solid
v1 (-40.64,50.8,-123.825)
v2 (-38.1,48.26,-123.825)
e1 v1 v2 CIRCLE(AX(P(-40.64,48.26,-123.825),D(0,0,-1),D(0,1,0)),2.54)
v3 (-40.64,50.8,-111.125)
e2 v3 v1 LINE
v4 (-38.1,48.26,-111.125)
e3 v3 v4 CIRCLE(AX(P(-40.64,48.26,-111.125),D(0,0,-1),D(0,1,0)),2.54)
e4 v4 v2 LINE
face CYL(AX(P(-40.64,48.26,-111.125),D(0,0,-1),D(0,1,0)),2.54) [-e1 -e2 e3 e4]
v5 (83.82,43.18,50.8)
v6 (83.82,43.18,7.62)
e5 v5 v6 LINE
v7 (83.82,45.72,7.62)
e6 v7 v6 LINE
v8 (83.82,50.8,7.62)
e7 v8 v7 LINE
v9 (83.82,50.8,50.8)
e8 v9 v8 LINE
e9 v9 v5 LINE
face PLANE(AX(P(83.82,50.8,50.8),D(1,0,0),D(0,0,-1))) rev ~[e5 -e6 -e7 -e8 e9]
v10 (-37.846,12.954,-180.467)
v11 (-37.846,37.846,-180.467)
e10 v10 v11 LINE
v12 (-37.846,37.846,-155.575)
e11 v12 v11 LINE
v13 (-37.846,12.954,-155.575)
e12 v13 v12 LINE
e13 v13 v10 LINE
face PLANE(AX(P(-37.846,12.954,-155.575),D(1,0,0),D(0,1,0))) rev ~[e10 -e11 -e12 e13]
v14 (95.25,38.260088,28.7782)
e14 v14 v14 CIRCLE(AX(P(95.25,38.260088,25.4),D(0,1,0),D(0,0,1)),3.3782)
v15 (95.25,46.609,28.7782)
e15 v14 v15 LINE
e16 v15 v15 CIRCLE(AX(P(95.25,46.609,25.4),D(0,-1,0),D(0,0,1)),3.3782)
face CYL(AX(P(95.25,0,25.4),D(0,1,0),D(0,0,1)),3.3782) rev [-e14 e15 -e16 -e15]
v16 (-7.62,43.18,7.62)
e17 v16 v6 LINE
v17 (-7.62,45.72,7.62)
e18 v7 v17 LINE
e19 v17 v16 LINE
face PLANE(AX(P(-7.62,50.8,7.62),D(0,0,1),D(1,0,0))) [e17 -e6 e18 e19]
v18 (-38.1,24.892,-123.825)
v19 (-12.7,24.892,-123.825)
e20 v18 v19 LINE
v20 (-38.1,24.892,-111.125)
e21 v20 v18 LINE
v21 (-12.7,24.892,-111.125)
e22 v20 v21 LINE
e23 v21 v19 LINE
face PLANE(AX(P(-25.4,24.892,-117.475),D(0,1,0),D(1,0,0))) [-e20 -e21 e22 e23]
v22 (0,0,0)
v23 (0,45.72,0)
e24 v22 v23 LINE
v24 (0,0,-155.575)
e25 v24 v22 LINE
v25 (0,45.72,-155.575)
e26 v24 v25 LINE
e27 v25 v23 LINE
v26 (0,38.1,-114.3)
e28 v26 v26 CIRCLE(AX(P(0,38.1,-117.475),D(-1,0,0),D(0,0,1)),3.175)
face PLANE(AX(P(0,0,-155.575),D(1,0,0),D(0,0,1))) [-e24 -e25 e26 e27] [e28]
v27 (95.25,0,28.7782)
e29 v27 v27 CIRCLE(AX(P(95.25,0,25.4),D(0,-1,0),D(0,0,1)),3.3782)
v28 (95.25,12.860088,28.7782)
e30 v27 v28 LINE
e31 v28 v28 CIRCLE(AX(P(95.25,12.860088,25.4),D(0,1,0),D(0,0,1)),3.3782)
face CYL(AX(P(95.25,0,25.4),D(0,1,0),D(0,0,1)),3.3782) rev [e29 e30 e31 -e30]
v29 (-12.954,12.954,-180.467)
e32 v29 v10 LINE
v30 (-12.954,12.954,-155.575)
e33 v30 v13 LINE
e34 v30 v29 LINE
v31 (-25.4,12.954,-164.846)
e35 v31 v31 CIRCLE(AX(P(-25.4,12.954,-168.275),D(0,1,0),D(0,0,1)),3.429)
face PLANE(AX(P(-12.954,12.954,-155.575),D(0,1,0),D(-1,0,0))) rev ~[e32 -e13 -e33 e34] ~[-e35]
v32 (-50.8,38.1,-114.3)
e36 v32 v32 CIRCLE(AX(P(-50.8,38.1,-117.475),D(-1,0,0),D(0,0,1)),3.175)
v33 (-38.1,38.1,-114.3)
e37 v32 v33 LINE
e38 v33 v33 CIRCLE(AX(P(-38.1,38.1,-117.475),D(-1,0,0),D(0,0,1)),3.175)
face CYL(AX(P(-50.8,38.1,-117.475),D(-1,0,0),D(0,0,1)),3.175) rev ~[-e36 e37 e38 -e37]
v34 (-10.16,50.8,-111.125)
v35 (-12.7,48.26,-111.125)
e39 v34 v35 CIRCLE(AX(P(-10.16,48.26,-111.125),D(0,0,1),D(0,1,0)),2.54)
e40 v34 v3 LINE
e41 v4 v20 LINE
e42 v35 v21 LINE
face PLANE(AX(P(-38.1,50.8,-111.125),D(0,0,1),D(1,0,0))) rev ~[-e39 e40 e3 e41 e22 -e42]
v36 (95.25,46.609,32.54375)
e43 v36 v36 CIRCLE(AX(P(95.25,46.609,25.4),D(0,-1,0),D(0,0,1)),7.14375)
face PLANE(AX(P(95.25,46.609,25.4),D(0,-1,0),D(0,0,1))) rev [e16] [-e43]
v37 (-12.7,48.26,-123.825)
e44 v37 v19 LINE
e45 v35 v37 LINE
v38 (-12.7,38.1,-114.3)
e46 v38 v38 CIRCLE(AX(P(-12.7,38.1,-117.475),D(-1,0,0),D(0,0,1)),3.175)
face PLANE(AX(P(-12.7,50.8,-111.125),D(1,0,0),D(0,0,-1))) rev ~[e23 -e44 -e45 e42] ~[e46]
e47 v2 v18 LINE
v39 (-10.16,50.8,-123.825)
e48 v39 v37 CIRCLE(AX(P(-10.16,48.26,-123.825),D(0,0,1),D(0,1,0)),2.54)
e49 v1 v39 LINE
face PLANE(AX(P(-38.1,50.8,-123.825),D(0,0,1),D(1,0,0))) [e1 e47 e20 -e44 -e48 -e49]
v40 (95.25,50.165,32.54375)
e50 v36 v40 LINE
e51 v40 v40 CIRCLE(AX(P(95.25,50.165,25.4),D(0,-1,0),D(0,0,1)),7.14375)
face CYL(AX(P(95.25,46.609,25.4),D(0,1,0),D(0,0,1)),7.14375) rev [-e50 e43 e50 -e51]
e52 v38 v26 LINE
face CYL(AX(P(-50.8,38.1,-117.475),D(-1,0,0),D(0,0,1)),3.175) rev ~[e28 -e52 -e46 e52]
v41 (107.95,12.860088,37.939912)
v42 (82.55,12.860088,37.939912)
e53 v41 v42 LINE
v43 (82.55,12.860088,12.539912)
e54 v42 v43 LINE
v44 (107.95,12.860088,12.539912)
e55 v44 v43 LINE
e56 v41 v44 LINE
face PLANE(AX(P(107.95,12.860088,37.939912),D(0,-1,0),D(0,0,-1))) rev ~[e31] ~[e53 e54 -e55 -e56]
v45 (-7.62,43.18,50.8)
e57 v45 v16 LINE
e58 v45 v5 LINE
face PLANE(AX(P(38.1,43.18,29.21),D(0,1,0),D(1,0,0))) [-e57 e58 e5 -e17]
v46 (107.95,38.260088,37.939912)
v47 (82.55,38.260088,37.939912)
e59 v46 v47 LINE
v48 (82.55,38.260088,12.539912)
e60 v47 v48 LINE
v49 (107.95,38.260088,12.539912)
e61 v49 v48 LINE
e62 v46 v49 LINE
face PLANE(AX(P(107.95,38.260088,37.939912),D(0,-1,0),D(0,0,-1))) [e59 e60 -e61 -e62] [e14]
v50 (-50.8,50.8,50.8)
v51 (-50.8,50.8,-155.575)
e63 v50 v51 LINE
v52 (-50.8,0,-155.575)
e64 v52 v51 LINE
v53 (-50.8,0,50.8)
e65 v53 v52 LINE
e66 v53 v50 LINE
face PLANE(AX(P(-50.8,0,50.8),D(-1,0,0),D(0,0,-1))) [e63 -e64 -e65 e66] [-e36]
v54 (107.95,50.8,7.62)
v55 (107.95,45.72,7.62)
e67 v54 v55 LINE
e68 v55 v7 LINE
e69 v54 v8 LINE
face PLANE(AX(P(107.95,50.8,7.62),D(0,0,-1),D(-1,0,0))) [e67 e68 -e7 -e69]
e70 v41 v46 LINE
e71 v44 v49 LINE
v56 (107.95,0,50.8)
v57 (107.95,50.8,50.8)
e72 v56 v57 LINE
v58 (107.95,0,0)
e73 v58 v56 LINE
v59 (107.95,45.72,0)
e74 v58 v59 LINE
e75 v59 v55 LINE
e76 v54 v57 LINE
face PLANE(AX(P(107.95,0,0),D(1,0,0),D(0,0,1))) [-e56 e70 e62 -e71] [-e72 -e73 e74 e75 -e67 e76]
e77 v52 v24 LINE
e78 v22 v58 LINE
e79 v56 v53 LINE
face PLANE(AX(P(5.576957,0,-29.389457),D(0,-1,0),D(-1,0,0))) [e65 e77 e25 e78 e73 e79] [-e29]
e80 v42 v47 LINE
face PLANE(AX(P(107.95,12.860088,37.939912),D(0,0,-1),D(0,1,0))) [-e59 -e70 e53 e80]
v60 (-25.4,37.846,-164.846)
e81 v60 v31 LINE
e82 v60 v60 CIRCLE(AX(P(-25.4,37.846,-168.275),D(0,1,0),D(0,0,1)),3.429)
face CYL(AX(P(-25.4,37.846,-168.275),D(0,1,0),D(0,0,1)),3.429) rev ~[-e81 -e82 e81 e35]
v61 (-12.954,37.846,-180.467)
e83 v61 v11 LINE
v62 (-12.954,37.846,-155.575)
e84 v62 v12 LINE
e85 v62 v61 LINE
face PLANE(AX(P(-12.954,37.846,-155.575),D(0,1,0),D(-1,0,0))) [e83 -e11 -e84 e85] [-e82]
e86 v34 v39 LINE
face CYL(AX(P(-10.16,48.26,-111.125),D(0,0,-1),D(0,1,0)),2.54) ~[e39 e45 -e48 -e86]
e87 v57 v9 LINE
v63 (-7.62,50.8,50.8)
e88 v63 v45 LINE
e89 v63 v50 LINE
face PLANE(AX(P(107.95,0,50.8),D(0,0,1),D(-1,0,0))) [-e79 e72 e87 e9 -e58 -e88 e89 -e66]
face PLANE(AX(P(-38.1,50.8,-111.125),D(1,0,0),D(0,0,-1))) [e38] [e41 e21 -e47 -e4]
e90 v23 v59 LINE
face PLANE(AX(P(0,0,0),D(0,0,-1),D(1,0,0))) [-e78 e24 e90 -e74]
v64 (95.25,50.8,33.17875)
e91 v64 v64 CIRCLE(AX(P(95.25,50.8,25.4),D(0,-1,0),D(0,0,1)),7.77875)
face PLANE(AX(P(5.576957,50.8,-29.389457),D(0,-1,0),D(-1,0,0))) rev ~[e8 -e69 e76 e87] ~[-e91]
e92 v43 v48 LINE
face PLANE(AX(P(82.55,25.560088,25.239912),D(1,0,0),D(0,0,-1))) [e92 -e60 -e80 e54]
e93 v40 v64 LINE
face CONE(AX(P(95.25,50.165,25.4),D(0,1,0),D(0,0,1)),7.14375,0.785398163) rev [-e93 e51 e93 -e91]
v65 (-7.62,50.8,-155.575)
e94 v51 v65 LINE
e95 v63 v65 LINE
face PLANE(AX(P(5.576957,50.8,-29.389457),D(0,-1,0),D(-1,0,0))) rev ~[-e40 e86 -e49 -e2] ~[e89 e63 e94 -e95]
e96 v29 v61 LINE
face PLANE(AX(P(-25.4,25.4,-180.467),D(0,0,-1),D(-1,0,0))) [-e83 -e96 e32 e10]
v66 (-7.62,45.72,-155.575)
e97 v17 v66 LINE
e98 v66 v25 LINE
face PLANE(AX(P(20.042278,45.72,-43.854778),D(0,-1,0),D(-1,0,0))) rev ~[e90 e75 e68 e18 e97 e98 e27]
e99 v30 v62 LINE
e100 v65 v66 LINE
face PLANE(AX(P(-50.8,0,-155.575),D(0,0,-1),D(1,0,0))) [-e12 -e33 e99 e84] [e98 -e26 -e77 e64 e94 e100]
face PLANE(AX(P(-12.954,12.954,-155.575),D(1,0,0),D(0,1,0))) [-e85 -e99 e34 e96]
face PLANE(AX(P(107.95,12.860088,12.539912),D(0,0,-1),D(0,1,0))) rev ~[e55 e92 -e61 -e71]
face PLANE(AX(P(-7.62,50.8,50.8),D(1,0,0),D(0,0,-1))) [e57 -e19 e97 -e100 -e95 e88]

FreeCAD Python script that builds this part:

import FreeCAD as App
import Part
import Sketcher
Q = App.Units.Quantity


def edges_at(feature, points):
    """Names of the edges that pass closest to the given points."""
    edges = feature.Shape.Edges
    near = lambda p: min(range(len(edges)), key=lambda i: edges[i].distToShape(Part.Vertex(*p))[0])
    return sorted({f"Edge{near(p) + 1}" for p in points})

doc = App.newDocument("Part")
body = doc.addObject("PartDesign::Body", "Body")

# Sketch on XZ plane
sketch1 = doc.addObject("Sketcher::SketchObject", "Sketch")
body.addObject(sketch1)
sketch1.AttachmentSupport = (doc.XZ_Plane, [""])
sketch1.MapMode = "FlatFace"
sketch1.addGeometry(Part.LineSegment(App.Vector(0, -156, 0), App.Vector(-51, -156, 0)), False)
sketch1.addGeometry(Part.LineSegment(App.Vector(-51, -156, 0), App.Vector(-51, 51, 0)), False)
sketch1.addGeometry(Part.LineSegment(App.Vector(-51, 51, 0), App.Vector(108, 51, 0)), False)
sketch1.addGeometry(Part.LineSegment(App.Vector(108, 51, 0), App.Vector(108, 0, 0)), False)
sketch1.addGeometry(Part.LineSegment(App.Vector(108, 0, 0), App.Vector(0, 0, 0)), False)
sketch1.addGeometry(Part.LineSegment(App.Vector(0, 0, 0), App.Vector(0, -156, 0)), False)
sketch1.addConstraint(Sketcher.Constraint("Coincident", 0, 2, 1, 1))
sketch1.addConstraint(Sketcher.Constraint("Coincident", 1, 2, 2, 1))
sketch1.addConstraint(Sketcher.Constraint("Coincident", 2, 2, 3, 1))
sketch1.addConstraint(Sketcher.Constraint("Coincident", 3, 2, 4, 1))
sketch1.addConstraint(Sketcher.Constraint("Coincident", 4, 2, 5, 1))
sketch1.addConstraint(Sketcher.Constraint("Coincident", 5, 2, 0, 1))
sketch1.addConstraint(Sketcher.Constraint("Horizontal", 0))
sketch1.addConstraint(Sketcher.Constraint("Vertical", 1))
sketch1.addConstraint(Sketcher.Constraint("Horizontal", 2))
sketch1.addConstraint(Sketcher.Constraint("Vertical", 3))
sketch1.addConstraint(Sketcher.Constraint("Horizontal", 4))
sketch1.addConstraint(Sketcher.Constraint("Vertical", 5))
sketch1.addConstraint(Sketcher.Constraint("Coincident", 4, 2, -1, 1))
sketch1.addConstraint(Sketcher.Constraint("Equal", 0, 3))
sketch1.addConstraint(Sketcher.Constraint("DistanceX", 0, 2, 0, 1, Q("2 in")))
sketch1.addConstraint(Sketcher.Constraint("DistanceX", 2, 1, 2, 2, Q("6.25 in")))
sketch1.addConstraint(Sketcher.Constraint("DistanceY", 1, 1, 1, 2, Q("8.125 in")))
pad1 = doc.addObject("PartDesign::Pad", "Pad")
body.addObject(pad1)
pad1.Profile = sketch1
pad1.Length = Q("2 in")
pad1.Reversed = True

# Sketch on YZ plane
sketch2 = doc.addObject("Sketcher::SketchObject", "Sketch001")
body.addObject(sketch2)
sketch2.AttachmentSupport = (doc.YZ_Plane, [""])
sketch2.MapMode = "FlatFace"
sketch2.AttachmentOffset = App.Placement(App.Vector(0, 0, 4.25 * 25.4), App.Rotation())
sketch2.addGeometry(Part.LineSegment(App.Vector(38, 38, 0), App.Vector(13, 38, 0)), False)
sketch2.addGeometry(Part.LineSegment(App.Vector(13, 38, 0), App.Vector(13, 13, 0)), False)
sketch2.addGeometry(Part.LineSegment(App.Vector(13, 13, 0), App.Vector(38, 13, 0)), False)
sketch2.addGeometry(Part.LineSegment(App.Vector(38, 13, 0), App.Vector(38, 38, 0)), False)
sketch2.addConstraint(Sketcher.Constraint("Coincident", 0, 2, 1, 1))
sketch2.addConstraint(Sketcher.Constraint("Coincident", 1, 2, 2, 1))
sketch2.addConstraint(Sketcher.Constraint("Coincident", 2, 2, 3, 1))
sketch2.addConstraint(Sketcher.Constraint("Coincident", 3, 2, 0, 1))
sketch2.addConstraint(Sketcher.Constraint("Horizontal", 0))
sketch2.addConstraint(Sketcher.Constraint("Vertical", 1))
sketch2.addConstraint(Sketcher.Constraint("Horizontal", 2))
sketch2.addConstraint(Sketcher.Constraint("Vertical", 3))
sketch2.addConstraint(Sketcher.Constraint("Equal", 2, 1))
sketch2.addConstraint(Sketcher.Constraint("DistanceX", 0, 2, 0, 1, Q("1 in")))
sketch2.addConstraint(Sketcher.Constraint("DistanceY", -1, 1, 1, 2, Q("12.539912 mm")))
sketch2.addConstraint(Sketcher.Constraint("DistanceX", -1, 1, 2, 2, Q("38.260088 mm")))
pocket1 = doc.addObject("PartDesign::Pocket", "Pocket")
body.addObject(pocket1)
pocket1.Profile = sketch2
pocket1.Length = Q("1 in")

# Sketch on YZ plane
sketch3 = doc.addObject("Sketcher::SketchObject", "Sketch002")
body.addObject(sketch3)
sketch3.AttachmentSupport = (doc.YZ_Plane, [""])
sketch3.MapMode = "FlatFace"
sketch3.AttachmentOffset = App.Placement(App.Vector(0, 0, 3.75 * 25.4), App.Rotation())
sketch3.addGeometry(Part.LineSegment(App.Vector(0, 25.4, 0), App.Vector(50.8, 25.4, 0)), False)
sketch3.addGeometry(Part.LineSegment(App.Vector(50.8, 25.4, 0), App.Vector(50.8, 33.2, 0)), False)
sketch3.addGeometry(Part.LineSegment(App.Vector(50.8, 33.2, 0), App.Vector(50.2, 32.5, 0)), False)
sketch3.addGeometry(Part.LineSegment(App.Vector(50.2, 32.5, 0), App.Vector(46.6, 32.5, 0)), False)
sketch3.addGeometry(Part.LineSegment(App.Vector(46.6, 32.5, 0), App.Vector(46.6, 28.8, 0)), False)
sketch3.addGeometry(Part.LineSegment(App.Vector(46.6, 28.8, 0), App.Vector(0, 28.8, 0)), False)
sketch3.addGeometry(Part.LineSegment(App.Vector(0, 28.8, 0), App.Vector(0, 25.4, 0)), False)
sketch3.addGeometry(Part.LineSegment(App.Vector(50.8, 25.4, 0), App.Vector(0, 25.4, 0)), True)  # axis
sketch3.addConstraint(Sketcher.Constraint("Coincident", 0, 2, 1, 1))
sketch3.addConstraint(Sketcher.Constraint("Coincident", 1, 2, 2, 1))
sketch3.addConstraint(Sketcher.Constraint("Coincident", 2, 2, 3, 1))
sketch3.addConstraint(Sketcher.Constraint("Coincident", 3, 2, 4, 1))
sketch3.addConstraint(Sketcher.Constraint("Coincident", 4, 2, 5, 1))
sketch3.addConstraint(Sketcher.Constraint("Coincident", 5, 2, 6, 1))
sketch3.addConstraint(Sketcher.Constraint("Coincident", 6, 2, 0, 1))
sketch3.addConstraint(Sketcher.Constraint("Horizontal", 0))
sketch3.addConstraint(Sketcher.Constraint("Vertical", 1))
sketch3.addConstraint(Sketcher.Constraint("Horizontal", 3))
sketch3.addConstraint(Sketcher.Constraint("Vertical", 4))
sketch3.addConstraint(Sketcher.Constraint("Horizontal", 5))
sketch3.addConstraint(Sketcher.Constraint("Vertical", 6))
sketch3.addConstraint(Sketcher.Constraint("Horizontal", 7))
sketch3.addConstraint(Sketcher.Constraint("Coincident", 7, 1, 0, 2))
sketch3.addConstraint(Sketcher.Constraint("PointOnObject", 5, 2, -2))
sketch3.addConstraint(Sketcher.Constraint("PointOnObject", 7, 2, -2))
sketch3.addConstraint(Sketcher.Constraint("DistanceX", 0, 1, 0, 2, Q("2 in")))
sketch3.addConstraint(Sketcher.Constraint("DistanceY", -1, 1, 0, 2, Q("1 in")))
sketch3.addConstraint(Sketcher.Constraint("Angle", 2, Q("-135 deg")))
sketch3.addConstraint(Sketcher.Constraint("DistanceX", 3, 2, 3, 1, Q("0.14 in")))
sketch3.addConstraint(Sketcher.Constraint("DistanceX", 5, 2, 5, 1, Q("1.835 in")))
sketch3.addConstraint(Sketcher.Constraint("DistanceY", 6, 2, 6, 1, Q("0.133 in")))
sketch3.addConstraint(Sketcher.Constraint("DistanceY", -1, 1, 2, 2, Q("1.28125 in")))
groove = doc.addObject("PartDesign::Groove", "Groove")
body.addObject(groove)
groove.Profile = sketch3
groove.ReferenceAxis = (sketch3, ["Axis0"])
groove.Angle = 360

# Sketch on XY plane
sketch4 = doc.addObject("Sketcher::SketchObject", "Sketch003")
body.addObject(sketch4)
sketch4.AttachmentSupport = (doc.XY_Plane, [""])
sketch4.MapMode = "FlatFace"
sketch4.AttachmentOffset = App.Placement(App.Vector(0, 0, -6.125 * 25.4), App.Rotation())
sketch4.addGeometry(Part.LineSegment(App.Vector(-13, 38, 0), App.Vector(-13, 13, 0)), False)
sketch4.addGeometry(Part.LineSegment(App.Vector(-13, 13, 0), App.Vector(-38, 13, 0)), False)
sketch4.addGeometry(Part.LineSegment(App.Vector(-38, 13, 0), App.Vector(-38, 38, 0)), False)
sketch4.addGeometry(Part.LineSegment(App.Vector(-38, 38, 0), App.Vector(-13, 38, 0)), False)
sketch4.addConstraint(Sketcher.Constraint("Coincident", 0, 2, 1, 1))
sketch4.addConstraint(Sketcher.Constraint("Coincident", 1, 2, 2, 1))
sketch4.addConstraint(Sketcher.Constraint("Coincident", 2, 2, 3, 1))
sketch4.addConstraint(Sketcher.Constraint("Coincident", 3, 2, 0, 1))
sketch4.addConstraint(Sketcher.Constraint("Vertical", 0))
sketch4.addConstraint(Sketcher.Constraint("Horizontal", 1))
sketch4.addConstraint(Sketcher.Constraint("Vertical", 2))
sketch4.addConstraint(Sketcher.Constraint("Horizontal", 3))
sketch4.addConstraint(Sketcher.Constraint("Equal", 3, 0))
sketch4.addConstraint(Sketcher.Constraint("DistanceX", 1, 2, 1, 1, Q("0.98 in")))
sketch4.addConstraint(Sketcher.Constraint("DistanceX", 0, 2, -1, 1, Q("0.51 in")))
sketch4.addConstraint(Sketcher.Constraint("DistanceY", -1, 1, 0, 2, Q("0.51 in")))
pad2 = doc.addObject("PartDesign::Pad", "Pad001")
body.addObject(pad2)
pad2.Profile = sketch4
pad2.Length = Q("0.98 in")
pad2.Reversed = True

# Sketch on XZ plane
sketch5 = doc.addObject("Sketcher::SketchObject", "Sketch004")
body.addObject(sketch5)
sketch5.AttachmentSupport = (doc.XZ_Plane, [""])
sketch5.MapMode = "FlatFace"
sketch5.AttachmentOffset = App.Placement(App.Vector(0, 0, -1.49 * 25.4), App.Rotation())
sketch5.addGeometry(Part.Circle(App.Vector(-25.4, -168.3, 0), App.Vector(0, 0, 1), 3.4), False)
sketch5.addConstraint(Sketcher.Constraint("Diameter", 0, Q("0.27 in")))
sketch5.addConstraint(Sketcher.Constraint("DistanceX", 0, 3, -1, 1, Q("1 in")))
sketch5.addConstraint(Sketcher.Constraint("DistanceY", 0, 3, -1, 1, Q("6.625 in")))
pocket2 = doc.addObject("PartDesign::Pocket", "Pocket001")
body.addObject(pocket2)
pocket2.Profile = sketch5
pocket2.Length = Q("1 in")
pocket2.Reversed = True

# Sketch on XZ plane
sketch6 = doc.addObject("Sketcher::SketchObject", "Sketch005")
body.addObject(sketch6)
sketch6.AttachmentSupport = (doc.XZ_Plane, [""])
sketch6.MapMode = "FlatFace"
sketch6.AttachmentOffset = App.Placement(App.Vector(0, 0, -2 * 25.4), App.Rotation())
sketch6.addGeometry(Part.LineSegment(App.Vector(-38, -124, 0), App.Vector(-38, -111, 0)), False)
sketch6.addGeometry(Part.LineSegment(App.Vector(-38, -111, 0), App.Vector(-13, -111, 0)), False)
sketch6.addGeometry(Part.LineSegment(App.Vector(-13, -111, 0), App.Vector(-13, -124, 0)), False)
sketch6.addGeometry(Part.LineSegment(App.Vector(-13, -124, 0), App.Vector(-38, -124, 0)), False)
sketch6.addConstraint(Sketcher.Constraint("Coincident", 0, 2, 1, 1))
sketch6.addConstraint(Sketcher.Constraint("Coincident", 1, 2, 2, 1))
sketch6.addConstraint(Sketcher.Constraint("Coincident", 2, 2, 3, 1))
sketch6.addConstraint(Sketcher.Constraint("Coincident", 3, 2, 0, 1))
sketch6.addConstraint(Sketcher.Constraint("Vertical", 0))
sketch6.addConstraint(Sketcher.Constraint("Horizontal", 1))
sketch6.addConstraint(Sketcher.Constraint("Vertical", 2))
sketch6.addConstraint(Sketcher.Constraint("Horizontal", 3))
sketch6.addConstraint(Sketcher.Constraint("DistanceX", 1, 1, 1, 2, Q("1 in")))
sketch6.addConstraint(Sketcher.Constraint("DistanceY", 0, 1, 0, 2, Q("0.5 in")))
sketch6.addConstraint(Sketcher.Constraint("DistanceX", 0, 2, -1, 1, Q("1.5 in")))
sketch6.addConstraint(Sketcher.Constraint("DistanceY", 0, 2, -1, 1, Q("4.375 in")))
pocket3 = doc.addObject("PartDesign::Pocket", "Pocket002")
body.addObject(pocket3)
pocket3.Profile = sketch6
pocket3.Length = Q("1.02 in")
pocket3.Reversed = True
doc.recompute()

fillet = doc.addObject("PartDesign::Fillet", "Fillet")
body.addObject(fillet)
fillet.Base = (pocket3, edges_at(pocket3, [(-38.1, 50.8, -117.475), (-12.7, 50.8, -117.475)]))
fillet.Radius = Q("0.1 in")

# Sketch on YZ plane
sketch7 = doc.addObject("Sketcher::SketchObject", "Sketch006")
body.addObject(sketch7)
sketch7.AttachmentSupport = (doc.YZ_Plane, [""])
sketch7.MapMode = "FlatFace"
sketch7.AttachmentOffset = App.Placement(App.Vector(0, 0, -2 * 25.4), App.Rotation())
sketch7.addGeometry(Part.Circle(App.Vector(38.1, -117.5, 0), App.Vector(0, 0, 1), 3.2), False)
sketch7.addConstraint(Sketcher.Constraint("Diameter", 0, Q("0.25 in")))
sketch7.addConstraint(Sketcher.Constraint("DistanceX", -1, 1, 0, 3, Q("1.5 in")))
sketch7.addConstraint(Sketcher.Constraint("DistanceY", 0, 3, -1, 1, Q("4.625 in")))
pocket4 = doc.addObject("PartDesign::Pocket", "Pocket003")
body.addObject(pocket4)
pocket4.Profile = sketch7
pocket4.Type = "ThroughAll"
pocket4.Reversed = True

# Sketch on XZ plane
sketch8 = doc.addObject("Sketcher::SketchObject", "Sketch007")
body.addObject(sketch8)
sketch8.AttachmentSupport = (doc.XZ_Plane, [""])
sketch8.MapMode = "FlatFace"
sketch8.AttachmentOffset = App.Placement(App.Vector(0, 0, -2 * 25.4), App.Rotation())
sketch8.addGeometry(Part.LineSegment(App.Vector(0, 0, 0), App.Vector(0, -156, 0)), False)
sketch8.addGeometry(Part.LineSegment(App.Vector(0, -156, 0), App.Vector(-8, -156, 0)), False)
sketch8.addGeometry(Part.LineSegment(App.Vector(-8, -156, 0), App.Vector(-8, 8, 0)), False)
sketch8.addGeometry(Part.LineSegment(App.Vector(-8, 8, 0), App.Vector(108, 8, 0)), False)
sketch8.addGeometry(Part.LineSegment(App.Vector(108, 8, 0), App.Vector(108, 0, 0)), False)
sketch8.addGeometry(Part.LineSegment(App.Vector(108, 0, 0), App.Vector(0, 0, 0)), False)
sketch8.addConstraint(Sketcher.Constraint("Coincident", 0, 2, 1, 1))
sketch8.addConstraint(Sketcher.Constraint("Coincident", 1, 2, 2, 1))
sketch8.addConstraint(Sketcher.Constraint("Coincident", 2, 2, 3, 1))
sketch8.addConstraint(Sketcher.Constraint("Coincident", 3, 2, 4, 1))
sketch8.addConstraint(Sketcher.Constraint("Coincident", 4, 2, 5, 1))
sketch8.addConstraint(Sketcher.Constraint("Coincident", 5, 2, 0, 1))
sketch8.addConstraint(Sketcher.Constraint("Vertical", 0))
sketch8.addConstraint(Sketcher.Constraint("Horizontal", 1))
sketch8.addConstraint(Sketcher.Constraint("Vertical", 2))
sketch8.addConstraint(Sketcher.Constraint("Horizontal", 3))
sketch8.addConstraint(Sketcher.Constraint("Vertical", 4))
sketch8.addConstraint(Sketcher.Constraint("Horizontal", 5))
sketch8.addConstraint(Sketcher.Constraint("Coincident", 5, 2, -1, 1))
sketch8.addConstraint(Sketcher.Constraint("Equal", 1, 4))
sketch8.addConstraint(Sketcher.Constraint("DistanceX", 1, 2, 1, 1, Q("0.3 in")))
sketch8.addConstraint(Sketcher.Constraint("DistanceX", 3, 1, 3, 2, Q("4.55 in")))
sketch8.addConstraint(Sketcher.Constraint("DistanceY", 0, 2, 0, 1, Q("6.125 in")))
pocket5 = doc.addObject("PartDesign::Pocket", "Pocket004")
body.addObject(pocket5)
pocket5.Profile = sketch8
pocket5.Length = Q("0.2 in")
pocket5.Reversed = True

# Sketch on XZ plane
sketch9 = doc.addObject("Sketcher::SketchObject", "Sketch008")
body.addObject(sketch9)
sketch9.AttachmentSupport = (doc.XZ_Plane, [""])
sketch9.MapMode = "FlatFace"
sketch9.AttachmentOffset = App.Placement(App.Vector(0, 0, -2 * 25.4), App.Rotation())
sketch9.addGeometry(Part.LineSegment(App.Vector(-8, 8, 0), App.Vector(-8, 51, 0)), False)
sketch9.addGeometry(Part.LineSegment(App.Vector(-8, 51, 0), App.Vector(84, 51, 0)), False)
sketch9.addGeometry(Part.LineSegment(App.Vector(84, 51, 0), App.Vector(84, 8, 0)), False)
sketch9.addGeometry(Part.LineSegment(App.Vector(84, 8, 0), App.Vector(-8, 8, 0)), False)
sketch9.addConstraint(Sketcher.Constraint("Coincident", 0, 2, 1, 1))
sketch9.addConstraint(Sketcher.Constraint("Coincident", 1, 2, 2, 1))
sketch9.addConstraint(Sketcher.Constraint("Coincident", 2, 2, 3, 1))
sketch9.addConstraint(Sketcher.Constraint("Coincident", 3, 2, 0, 1))
sketch9.addConstraint(Sketcher.Constraint("Vertical", 0))
sketch9.addConstraint(Sketcher.Constraint("Horizontal", 1))
sketch9.addConstraint(Sketcher.Constraint("Vertical", 2))
sketch9.addConstraint(Sketcher.Constraint("Horizontal", 3))
sketch9.addConstraint(Sketcher.Constraint("DistanceX", 1, 1, 1, 2, Q("3.6 in")))
sketch9.addConstraint(Sketcher.Constraint("DistanceY", 0, 1, 0, 2, Q("1.7 in")))
sketch9.addConstraint(Sketcher.Constraint("DistanceY", -1, 1, 0, 2, Q("2 in")))
sketch9.addConstraint(Sketcher.Constraint("DistanceX", 0, 2, -1, 1, Q("0.3 in")))
pocket6 = doc.addObject("PartDesign::Pocket", "Pocket005")
body.addObject(pocket6)
pocket6.Profile = sketch9
pocket6.Length = Q("0.3 in")
pocket6.Reversed = True

doc.recompute()
